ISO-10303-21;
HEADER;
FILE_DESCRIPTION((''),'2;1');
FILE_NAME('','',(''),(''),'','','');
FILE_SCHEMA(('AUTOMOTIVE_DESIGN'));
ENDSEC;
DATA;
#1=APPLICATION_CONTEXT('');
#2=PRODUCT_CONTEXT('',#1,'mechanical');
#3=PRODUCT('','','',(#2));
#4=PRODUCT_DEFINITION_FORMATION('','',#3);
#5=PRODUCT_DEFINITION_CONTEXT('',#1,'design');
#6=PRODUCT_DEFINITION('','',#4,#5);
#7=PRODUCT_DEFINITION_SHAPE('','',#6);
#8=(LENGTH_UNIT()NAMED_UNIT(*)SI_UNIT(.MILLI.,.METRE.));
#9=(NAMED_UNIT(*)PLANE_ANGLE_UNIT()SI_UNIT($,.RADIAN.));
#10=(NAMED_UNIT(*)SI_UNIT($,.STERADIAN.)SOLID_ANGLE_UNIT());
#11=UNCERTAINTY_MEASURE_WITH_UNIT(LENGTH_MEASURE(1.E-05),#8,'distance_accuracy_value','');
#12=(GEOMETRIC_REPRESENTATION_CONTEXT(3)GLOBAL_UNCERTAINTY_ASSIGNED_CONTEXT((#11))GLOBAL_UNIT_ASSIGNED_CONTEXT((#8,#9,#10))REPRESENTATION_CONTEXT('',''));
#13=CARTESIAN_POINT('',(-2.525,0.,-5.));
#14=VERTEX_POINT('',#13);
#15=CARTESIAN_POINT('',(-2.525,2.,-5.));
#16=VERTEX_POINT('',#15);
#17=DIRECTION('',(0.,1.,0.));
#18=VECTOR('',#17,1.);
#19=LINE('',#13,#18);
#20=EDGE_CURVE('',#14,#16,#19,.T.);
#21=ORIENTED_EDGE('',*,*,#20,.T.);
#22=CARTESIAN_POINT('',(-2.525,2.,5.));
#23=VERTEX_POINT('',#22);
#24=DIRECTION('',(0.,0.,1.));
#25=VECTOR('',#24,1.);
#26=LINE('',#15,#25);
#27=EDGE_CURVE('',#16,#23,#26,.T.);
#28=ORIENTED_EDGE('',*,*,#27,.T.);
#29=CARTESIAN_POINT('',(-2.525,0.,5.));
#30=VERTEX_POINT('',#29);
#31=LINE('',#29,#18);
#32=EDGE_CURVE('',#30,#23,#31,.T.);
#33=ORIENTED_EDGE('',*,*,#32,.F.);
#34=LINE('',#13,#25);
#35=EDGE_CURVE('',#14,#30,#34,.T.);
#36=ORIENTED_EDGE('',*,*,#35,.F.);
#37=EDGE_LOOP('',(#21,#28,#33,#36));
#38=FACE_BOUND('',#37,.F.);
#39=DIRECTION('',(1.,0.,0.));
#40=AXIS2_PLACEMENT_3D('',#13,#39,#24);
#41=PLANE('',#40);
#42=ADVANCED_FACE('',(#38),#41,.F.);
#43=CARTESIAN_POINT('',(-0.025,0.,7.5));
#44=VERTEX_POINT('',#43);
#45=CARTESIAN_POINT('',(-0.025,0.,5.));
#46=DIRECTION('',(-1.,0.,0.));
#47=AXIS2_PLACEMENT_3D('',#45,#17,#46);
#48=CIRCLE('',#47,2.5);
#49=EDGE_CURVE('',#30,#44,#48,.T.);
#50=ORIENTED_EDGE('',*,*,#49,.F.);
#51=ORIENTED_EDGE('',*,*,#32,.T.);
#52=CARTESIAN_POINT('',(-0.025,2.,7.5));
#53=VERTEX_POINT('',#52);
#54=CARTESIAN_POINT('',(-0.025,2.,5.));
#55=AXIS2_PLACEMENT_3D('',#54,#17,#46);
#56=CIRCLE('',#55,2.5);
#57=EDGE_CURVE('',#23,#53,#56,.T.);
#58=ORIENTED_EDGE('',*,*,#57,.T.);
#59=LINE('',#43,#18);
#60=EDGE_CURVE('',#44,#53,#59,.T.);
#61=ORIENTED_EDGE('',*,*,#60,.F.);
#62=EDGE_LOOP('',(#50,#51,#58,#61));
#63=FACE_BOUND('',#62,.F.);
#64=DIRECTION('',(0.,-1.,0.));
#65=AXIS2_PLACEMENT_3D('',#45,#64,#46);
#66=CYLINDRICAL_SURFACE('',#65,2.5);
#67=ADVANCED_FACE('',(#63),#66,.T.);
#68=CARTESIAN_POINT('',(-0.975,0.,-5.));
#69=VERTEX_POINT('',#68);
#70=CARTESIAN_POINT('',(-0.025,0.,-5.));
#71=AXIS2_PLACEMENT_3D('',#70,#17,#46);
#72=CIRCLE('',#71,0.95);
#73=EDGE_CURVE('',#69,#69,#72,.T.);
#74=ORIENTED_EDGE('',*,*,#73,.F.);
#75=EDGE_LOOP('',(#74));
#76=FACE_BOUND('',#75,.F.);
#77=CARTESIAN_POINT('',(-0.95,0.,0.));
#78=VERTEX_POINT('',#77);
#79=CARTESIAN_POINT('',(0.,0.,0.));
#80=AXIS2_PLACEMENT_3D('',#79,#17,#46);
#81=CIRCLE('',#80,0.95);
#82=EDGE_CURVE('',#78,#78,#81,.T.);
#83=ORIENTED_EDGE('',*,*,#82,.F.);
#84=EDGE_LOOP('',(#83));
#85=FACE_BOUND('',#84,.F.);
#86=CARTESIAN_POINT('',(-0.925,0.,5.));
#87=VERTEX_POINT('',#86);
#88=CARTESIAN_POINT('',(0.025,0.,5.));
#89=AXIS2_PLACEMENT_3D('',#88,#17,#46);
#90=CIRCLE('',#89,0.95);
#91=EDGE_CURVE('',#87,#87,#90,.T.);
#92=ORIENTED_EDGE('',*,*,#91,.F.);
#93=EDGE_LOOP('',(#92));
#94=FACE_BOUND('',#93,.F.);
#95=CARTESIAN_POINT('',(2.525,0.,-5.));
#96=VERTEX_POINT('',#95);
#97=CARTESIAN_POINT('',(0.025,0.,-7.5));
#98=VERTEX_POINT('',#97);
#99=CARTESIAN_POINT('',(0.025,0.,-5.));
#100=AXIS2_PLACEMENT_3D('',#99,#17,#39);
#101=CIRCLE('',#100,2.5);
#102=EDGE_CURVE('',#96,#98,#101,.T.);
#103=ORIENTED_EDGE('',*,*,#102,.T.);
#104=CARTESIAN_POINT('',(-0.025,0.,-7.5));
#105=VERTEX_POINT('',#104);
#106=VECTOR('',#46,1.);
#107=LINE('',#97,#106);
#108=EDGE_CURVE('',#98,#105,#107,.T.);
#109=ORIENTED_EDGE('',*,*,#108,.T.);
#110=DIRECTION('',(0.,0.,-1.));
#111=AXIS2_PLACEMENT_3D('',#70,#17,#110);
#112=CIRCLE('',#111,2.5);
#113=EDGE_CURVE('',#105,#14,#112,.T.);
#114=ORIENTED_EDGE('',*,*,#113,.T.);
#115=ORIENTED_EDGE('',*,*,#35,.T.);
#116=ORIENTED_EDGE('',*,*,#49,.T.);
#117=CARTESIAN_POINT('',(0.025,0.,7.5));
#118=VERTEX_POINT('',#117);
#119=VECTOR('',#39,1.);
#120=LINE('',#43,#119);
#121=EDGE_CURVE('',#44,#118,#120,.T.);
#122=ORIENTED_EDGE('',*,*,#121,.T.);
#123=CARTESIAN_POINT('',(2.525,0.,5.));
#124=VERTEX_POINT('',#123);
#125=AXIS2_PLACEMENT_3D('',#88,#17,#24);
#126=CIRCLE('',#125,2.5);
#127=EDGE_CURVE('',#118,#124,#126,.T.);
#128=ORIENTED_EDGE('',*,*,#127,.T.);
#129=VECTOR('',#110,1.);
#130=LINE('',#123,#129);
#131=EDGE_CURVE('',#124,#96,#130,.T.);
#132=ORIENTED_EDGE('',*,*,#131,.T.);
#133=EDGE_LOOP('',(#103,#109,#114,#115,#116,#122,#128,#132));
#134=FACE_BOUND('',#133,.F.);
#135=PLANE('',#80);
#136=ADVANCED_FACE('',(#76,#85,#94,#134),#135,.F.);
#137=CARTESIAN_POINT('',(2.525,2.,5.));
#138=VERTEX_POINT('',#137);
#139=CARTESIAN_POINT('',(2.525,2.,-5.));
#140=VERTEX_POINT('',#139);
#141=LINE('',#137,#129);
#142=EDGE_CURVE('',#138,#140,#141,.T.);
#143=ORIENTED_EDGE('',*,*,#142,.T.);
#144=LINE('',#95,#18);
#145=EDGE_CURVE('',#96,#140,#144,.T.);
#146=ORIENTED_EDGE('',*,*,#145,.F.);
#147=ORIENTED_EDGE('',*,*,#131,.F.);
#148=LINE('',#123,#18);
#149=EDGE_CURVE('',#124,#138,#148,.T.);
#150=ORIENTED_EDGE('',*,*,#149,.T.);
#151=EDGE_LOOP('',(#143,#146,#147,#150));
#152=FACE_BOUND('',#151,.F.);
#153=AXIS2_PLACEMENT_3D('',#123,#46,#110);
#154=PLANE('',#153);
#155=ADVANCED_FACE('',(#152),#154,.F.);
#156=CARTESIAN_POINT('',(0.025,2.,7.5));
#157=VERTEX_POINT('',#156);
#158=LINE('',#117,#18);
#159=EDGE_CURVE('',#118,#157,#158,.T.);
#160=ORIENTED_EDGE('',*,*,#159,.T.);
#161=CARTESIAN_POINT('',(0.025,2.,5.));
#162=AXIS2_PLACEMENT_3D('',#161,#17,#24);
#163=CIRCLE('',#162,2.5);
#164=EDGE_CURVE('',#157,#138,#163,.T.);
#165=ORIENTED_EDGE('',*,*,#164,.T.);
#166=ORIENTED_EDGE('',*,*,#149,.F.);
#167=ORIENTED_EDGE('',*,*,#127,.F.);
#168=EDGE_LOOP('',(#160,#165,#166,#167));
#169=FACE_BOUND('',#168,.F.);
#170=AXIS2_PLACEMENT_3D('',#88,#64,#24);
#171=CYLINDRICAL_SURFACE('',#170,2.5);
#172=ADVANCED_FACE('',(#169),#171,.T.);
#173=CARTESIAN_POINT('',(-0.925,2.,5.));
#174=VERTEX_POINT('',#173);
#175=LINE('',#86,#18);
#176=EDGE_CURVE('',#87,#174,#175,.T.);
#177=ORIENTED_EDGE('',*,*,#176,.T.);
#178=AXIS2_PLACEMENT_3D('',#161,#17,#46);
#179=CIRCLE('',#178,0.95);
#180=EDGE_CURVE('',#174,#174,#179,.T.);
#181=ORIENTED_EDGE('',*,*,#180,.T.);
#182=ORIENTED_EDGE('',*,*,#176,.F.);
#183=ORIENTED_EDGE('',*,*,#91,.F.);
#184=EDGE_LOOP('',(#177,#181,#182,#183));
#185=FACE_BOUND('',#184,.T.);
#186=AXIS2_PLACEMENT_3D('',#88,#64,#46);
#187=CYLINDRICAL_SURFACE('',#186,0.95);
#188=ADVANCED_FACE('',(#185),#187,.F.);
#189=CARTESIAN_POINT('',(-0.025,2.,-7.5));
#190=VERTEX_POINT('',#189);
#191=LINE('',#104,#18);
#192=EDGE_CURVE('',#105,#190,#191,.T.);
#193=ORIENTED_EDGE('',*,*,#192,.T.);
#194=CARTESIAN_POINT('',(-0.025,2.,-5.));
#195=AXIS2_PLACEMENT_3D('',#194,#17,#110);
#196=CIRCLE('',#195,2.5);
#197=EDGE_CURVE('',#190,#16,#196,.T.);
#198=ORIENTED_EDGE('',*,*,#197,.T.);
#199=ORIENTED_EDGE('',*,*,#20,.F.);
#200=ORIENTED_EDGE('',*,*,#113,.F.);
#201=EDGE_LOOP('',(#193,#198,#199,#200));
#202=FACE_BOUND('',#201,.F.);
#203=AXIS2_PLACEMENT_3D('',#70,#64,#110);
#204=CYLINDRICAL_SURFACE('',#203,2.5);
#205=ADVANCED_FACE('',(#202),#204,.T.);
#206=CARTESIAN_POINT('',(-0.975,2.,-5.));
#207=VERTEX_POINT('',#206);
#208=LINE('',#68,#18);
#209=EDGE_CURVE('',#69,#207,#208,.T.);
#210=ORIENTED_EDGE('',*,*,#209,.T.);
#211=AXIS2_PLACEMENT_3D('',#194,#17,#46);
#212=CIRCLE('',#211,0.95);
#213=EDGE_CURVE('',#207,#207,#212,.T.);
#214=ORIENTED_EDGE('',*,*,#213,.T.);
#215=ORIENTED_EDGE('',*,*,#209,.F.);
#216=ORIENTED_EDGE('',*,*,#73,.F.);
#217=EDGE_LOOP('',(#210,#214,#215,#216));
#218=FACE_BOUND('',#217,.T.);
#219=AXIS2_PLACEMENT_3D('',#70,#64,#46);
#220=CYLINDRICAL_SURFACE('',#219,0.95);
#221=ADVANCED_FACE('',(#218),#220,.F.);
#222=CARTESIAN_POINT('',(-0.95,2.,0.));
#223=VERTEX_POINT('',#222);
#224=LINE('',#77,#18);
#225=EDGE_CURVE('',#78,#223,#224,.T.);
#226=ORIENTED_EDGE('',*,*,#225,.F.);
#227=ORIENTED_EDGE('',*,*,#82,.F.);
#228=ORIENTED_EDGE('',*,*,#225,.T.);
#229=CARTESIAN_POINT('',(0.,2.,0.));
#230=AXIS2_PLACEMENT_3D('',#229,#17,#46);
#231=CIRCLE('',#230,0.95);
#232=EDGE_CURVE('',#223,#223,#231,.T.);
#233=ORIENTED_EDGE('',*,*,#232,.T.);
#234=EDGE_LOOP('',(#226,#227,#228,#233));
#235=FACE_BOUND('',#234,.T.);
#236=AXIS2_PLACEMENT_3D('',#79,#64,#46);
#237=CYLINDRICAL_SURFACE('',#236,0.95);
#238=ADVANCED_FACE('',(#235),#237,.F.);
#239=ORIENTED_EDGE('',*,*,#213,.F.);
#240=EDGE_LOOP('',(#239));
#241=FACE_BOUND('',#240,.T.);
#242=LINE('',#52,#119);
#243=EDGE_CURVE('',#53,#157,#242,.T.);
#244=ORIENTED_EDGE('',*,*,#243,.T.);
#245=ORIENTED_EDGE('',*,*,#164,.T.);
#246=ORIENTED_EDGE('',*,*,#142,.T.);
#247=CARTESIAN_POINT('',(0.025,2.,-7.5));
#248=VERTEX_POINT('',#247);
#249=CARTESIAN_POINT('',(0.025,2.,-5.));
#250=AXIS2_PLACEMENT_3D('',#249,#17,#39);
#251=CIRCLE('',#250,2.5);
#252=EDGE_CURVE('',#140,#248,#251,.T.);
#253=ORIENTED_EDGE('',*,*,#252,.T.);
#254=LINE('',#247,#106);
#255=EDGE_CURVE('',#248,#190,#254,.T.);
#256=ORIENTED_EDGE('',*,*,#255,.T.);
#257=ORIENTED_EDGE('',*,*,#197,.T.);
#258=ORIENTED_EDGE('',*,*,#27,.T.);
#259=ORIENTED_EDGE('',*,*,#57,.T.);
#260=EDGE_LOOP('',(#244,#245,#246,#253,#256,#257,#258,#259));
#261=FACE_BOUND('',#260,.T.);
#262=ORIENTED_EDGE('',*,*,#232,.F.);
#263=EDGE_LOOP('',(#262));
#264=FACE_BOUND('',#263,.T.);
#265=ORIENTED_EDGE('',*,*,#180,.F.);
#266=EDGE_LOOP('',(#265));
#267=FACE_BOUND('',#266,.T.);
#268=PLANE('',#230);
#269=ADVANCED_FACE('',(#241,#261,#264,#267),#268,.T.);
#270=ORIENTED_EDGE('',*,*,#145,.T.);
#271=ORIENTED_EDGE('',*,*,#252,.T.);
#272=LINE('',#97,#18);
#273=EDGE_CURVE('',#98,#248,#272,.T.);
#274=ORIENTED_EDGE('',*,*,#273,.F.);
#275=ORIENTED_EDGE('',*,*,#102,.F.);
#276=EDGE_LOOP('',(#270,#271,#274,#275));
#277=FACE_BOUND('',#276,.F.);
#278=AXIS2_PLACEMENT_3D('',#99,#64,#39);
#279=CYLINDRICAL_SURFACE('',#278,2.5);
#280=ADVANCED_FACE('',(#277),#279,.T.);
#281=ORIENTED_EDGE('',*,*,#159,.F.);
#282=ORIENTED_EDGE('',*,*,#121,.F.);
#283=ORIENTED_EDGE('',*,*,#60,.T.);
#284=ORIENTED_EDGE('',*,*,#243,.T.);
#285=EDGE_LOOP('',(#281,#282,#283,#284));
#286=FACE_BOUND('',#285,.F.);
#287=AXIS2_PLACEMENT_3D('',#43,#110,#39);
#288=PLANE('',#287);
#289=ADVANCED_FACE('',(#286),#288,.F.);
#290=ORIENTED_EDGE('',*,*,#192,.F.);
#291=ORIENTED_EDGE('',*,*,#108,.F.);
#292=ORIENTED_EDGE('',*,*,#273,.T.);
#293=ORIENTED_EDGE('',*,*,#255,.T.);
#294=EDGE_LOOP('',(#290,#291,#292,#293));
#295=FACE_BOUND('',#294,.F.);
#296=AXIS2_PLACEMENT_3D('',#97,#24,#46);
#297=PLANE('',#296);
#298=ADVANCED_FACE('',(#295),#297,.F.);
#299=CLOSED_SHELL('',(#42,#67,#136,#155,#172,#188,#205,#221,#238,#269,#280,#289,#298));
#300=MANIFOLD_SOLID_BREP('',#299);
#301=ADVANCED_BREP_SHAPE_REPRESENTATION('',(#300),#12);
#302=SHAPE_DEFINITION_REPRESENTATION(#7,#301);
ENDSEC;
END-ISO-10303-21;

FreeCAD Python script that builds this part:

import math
import FreeCAD as App
import Part
import Sketcher
from FreeCAD import Vector

doc = App.newDocument("Part")
body = doc.addObject("PartDesign::Body", "Body")

sketch1 = body.newObject("Sketcher::SketchObject", "Sketch")
sketch1.AttachmentSupport = (doc.getObject("XZ_Plane"), [""])
sketch1.MapMode = "FlatFace"
sketch1.addGeometry([
    Part.ArcOfCircle(Part.Circle(Vector(0.03, -5, 0), Vector(0, 0, 1), 2.5), math.radians(-90), math.radians(0)),
    Part.LineSegment(Vector(0.03, -7.5, 0), Vector(-0.03, -7.5, 0)),
    Part.ArcOfCircle(Part.Circle(Vector(-0.03, -5, 0), Vector(0, 0, 1), 2.5), math.radians(180), math.radians(270)),
    Part.LineSegment(Vector(-2.52, -5, 0), Vector(-2.52, 5, 0)),
    Part.ArcOfCircle(Part.Circle(Vector(-0.03, 5, 0), Vector(0, 0, 1), 2.5), math.radians(90), math.radians(180)),
    Part.LineSegment(Vector(-0.03, 7.5, 0), Vector(0.03, 7.5, 0)),
    Part.ArcOfCircle(Part.Circle(Vector(0.03, 5, 0), Vector(0, 0, 1), 2.5), math.radians(0), math.radians(90)),
    Part.LineSegment(Vector(2.52, 5, 0), Vector(2.52, -5, 0)),
    Part.Circle(Vector(-0.03, -5, 0), Vector(0, 0, 1), 0.95),
    Part.Circle(Vector(0, 0, 0), Vector(0, 0, 1), 0.95),
    Part.Circle(Vector(0.03, 5, 0), Vector(0, 0, 1), 0.95),
], False)
sketch1.addConstraint([
    Sketcher.Constraint("Tangent", 0, 1, 1, 1),
    Sketcher.Constraint("Tangent", 1, 2, 2, 2),
    Sketcher.Constraint("Tangent", 2, 1, 3, 1),
    Sketcher.Constraint("Tangent", 3, 2, 4, 2),
    Sketcher.Constraint("Tangent", 4, 1, 5, 1),
    Sketcher.Constraint("Tangent", 5, 2, 6, 2),
    Sketcher.Constraint("Tangent", 6, 1, 7, 1),
    Sketcher.Constraint("Tangent", 7, 2, 0, 2),
    Sketcher.Constraint("Horizontal", 1),
    Sketcher.Constraint("Vertical", 3),
    Sketcher.Constraint("Horizontal", 5),
    Sketcher.Constraint("Vertical", 7),
    Sketcher.Constraint("Coincident", 9, 3, -1, 1),
    Sketcher.Constraint("Coincident", 8, 3, 2, 3),
    Sketcher.Constraint("Coincident", 10, 3, 6, 3),
    Sketcher.Constraint("Equal", 0, 2),
    Sketcher.Constraint("Equal", 2, 4),
    Sketcher.Constraint("Equal", 4, 6),
    Sketcher.Constraint("Equal", 8, 9),
    Sketcher.Constraint("Equal", 9, 10),
    Sketcher.Constraint("Symmetric", 0, 3, 4, 3, -1, 1),
    Sketcher.Constraint("Diameter", 8, 1.9),
    Sketcher.Constraint("Radius", 0, 2.5),
    Sketcher.Constraint("DistanceY", 3, 1, 3, 2, 10.0),
    Sketcher.Constraint("DistanceX", 1, 2, 1, 1, 0.05),
])
pad1 = body.newObject("PartDesign::Pad", "Pad")
pad1.Profile = sketch1
pad1.Length = 2
pad1.Reversed = True

doc.recompute()
